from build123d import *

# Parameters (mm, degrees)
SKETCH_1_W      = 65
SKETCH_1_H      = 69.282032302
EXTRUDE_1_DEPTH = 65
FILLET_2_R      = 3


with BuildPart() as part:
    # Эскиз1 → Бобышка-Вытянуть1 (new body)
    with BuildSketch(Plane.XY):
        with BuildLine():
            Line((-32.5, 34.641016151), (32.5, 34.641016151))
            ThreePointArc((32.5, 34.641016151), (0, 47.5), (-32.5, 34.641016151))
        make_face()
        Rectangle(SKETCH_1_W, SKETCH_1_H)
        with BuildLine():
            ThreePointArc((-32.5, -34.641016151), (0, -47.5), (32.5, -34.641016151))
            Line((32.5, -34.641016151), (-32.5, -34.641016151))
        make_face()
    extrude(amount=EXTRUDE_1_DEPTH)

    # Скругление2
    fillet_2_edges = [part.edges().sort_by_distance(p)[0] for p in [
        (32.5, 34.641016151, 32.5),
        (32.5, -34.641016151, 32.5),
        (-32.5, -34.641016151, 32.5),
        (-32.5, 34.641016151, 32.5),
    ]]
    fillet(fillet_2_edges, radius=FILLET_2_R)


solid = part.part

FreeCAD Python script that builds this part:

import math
import FreeCAD as App
import Part
import Sketcher

V = App.Vector


def edges_at(feature, points):
    """Names of the edges that pass closest to the given points."""
    edges = feature.Shape.Edges
    near = lambda p: min(range(len(edges)), key=lambda i: edges[i].distToShape(Part.Vertex(*p))[0])
    return sorted({f"Edge{near(p) + 1}" for p in points})

doc = App.newDocument("Part")
body = doc.addObject("PartDesign::Body", "Body")

# Sketch on XY plane
sketch1 = body.newObject("Sketcher::SketchObject", "Sketch")
sketch1.AttachmentSupport = (doc.getObject("XY_Plane"), [""])
sketch1.MapMode = "FlatFace"
sketch1.addGeometry(Part.ArcOfCircle(Part.Circle(V(0, 0, 0), V(0, 0, 1), 47), math.radians(47), math.radians(133)), False)
sketch1.addGeometry(Part.LineSegment(V(-32, 35, 0), V(-32, -35, 0)), False)
sketch1.addGeometry(Part.ArcOfCircle(Part.Circle(V(0, 0, 0), V(0, 0, 1), 47), math.radians(-133), math.radians(-47)), False)
sketch1.addGeometry(Part.LineSegment(V(32, -35, 0), V(32, 35, 0)), False)
sketch1.addConstraint(Sketcher.Constraint("Coincident", 0, 2, 1, 1))
sketch1.addConstraint(Sketcher.Constraint("Coincident", 1, 2, 2, 1))
sketch1.addConstraint(Sketcher.Constraint("Coincident", 2, 2, 3, 1))
sketch1.addConstraint(Sketcher.Constraint("Coincident", 3, 2, 0, 1))
sketch1.addConstraint(Sketcher.Constraint("Vertical", 1))
sketch1.addConstraint(Sketcher.Constraint("Vertical", 3))
sketch1.addConstraint(Sketcher.Constraint("Coincident", 0, 3, -1, 1))
sketch1.addConstraint(Sketcher.Constraint("Coincident", 2, 3, -1, 1))
sketch1.addConstraint(Sketcher.Constraint("Equal", 0, 2))
sketch1.addConstraint(Sketcher.Constraint("Horizontal", 1, 2, 2, 2))
sketch1.addConstraint(Sketcher.Constraint("Radius", 0, 47.5))
sketch1.addConstraint(Sketcher.Constraint("DistanceX", 1, 2, 2, 2, 65.0))
pad1 = body.newObject("PartDesign::Pad", "Pad")
pad1.Profile = sketch1
pad1.Length = 65
doc.recompute()

fillet = body.newObject("PartDesign::Fillet", "Fillet")
fillet.Base = (pad1, edges_at(pad1, [
    (32.5, 34.641, 32.5),
    (32.5, -34.641, 32.5),
    (-32.5, -34.641, 32.5),
    (-32.5, 34.641, 32.5),
]))
fillet.Radius = 3

doc.recompute()
